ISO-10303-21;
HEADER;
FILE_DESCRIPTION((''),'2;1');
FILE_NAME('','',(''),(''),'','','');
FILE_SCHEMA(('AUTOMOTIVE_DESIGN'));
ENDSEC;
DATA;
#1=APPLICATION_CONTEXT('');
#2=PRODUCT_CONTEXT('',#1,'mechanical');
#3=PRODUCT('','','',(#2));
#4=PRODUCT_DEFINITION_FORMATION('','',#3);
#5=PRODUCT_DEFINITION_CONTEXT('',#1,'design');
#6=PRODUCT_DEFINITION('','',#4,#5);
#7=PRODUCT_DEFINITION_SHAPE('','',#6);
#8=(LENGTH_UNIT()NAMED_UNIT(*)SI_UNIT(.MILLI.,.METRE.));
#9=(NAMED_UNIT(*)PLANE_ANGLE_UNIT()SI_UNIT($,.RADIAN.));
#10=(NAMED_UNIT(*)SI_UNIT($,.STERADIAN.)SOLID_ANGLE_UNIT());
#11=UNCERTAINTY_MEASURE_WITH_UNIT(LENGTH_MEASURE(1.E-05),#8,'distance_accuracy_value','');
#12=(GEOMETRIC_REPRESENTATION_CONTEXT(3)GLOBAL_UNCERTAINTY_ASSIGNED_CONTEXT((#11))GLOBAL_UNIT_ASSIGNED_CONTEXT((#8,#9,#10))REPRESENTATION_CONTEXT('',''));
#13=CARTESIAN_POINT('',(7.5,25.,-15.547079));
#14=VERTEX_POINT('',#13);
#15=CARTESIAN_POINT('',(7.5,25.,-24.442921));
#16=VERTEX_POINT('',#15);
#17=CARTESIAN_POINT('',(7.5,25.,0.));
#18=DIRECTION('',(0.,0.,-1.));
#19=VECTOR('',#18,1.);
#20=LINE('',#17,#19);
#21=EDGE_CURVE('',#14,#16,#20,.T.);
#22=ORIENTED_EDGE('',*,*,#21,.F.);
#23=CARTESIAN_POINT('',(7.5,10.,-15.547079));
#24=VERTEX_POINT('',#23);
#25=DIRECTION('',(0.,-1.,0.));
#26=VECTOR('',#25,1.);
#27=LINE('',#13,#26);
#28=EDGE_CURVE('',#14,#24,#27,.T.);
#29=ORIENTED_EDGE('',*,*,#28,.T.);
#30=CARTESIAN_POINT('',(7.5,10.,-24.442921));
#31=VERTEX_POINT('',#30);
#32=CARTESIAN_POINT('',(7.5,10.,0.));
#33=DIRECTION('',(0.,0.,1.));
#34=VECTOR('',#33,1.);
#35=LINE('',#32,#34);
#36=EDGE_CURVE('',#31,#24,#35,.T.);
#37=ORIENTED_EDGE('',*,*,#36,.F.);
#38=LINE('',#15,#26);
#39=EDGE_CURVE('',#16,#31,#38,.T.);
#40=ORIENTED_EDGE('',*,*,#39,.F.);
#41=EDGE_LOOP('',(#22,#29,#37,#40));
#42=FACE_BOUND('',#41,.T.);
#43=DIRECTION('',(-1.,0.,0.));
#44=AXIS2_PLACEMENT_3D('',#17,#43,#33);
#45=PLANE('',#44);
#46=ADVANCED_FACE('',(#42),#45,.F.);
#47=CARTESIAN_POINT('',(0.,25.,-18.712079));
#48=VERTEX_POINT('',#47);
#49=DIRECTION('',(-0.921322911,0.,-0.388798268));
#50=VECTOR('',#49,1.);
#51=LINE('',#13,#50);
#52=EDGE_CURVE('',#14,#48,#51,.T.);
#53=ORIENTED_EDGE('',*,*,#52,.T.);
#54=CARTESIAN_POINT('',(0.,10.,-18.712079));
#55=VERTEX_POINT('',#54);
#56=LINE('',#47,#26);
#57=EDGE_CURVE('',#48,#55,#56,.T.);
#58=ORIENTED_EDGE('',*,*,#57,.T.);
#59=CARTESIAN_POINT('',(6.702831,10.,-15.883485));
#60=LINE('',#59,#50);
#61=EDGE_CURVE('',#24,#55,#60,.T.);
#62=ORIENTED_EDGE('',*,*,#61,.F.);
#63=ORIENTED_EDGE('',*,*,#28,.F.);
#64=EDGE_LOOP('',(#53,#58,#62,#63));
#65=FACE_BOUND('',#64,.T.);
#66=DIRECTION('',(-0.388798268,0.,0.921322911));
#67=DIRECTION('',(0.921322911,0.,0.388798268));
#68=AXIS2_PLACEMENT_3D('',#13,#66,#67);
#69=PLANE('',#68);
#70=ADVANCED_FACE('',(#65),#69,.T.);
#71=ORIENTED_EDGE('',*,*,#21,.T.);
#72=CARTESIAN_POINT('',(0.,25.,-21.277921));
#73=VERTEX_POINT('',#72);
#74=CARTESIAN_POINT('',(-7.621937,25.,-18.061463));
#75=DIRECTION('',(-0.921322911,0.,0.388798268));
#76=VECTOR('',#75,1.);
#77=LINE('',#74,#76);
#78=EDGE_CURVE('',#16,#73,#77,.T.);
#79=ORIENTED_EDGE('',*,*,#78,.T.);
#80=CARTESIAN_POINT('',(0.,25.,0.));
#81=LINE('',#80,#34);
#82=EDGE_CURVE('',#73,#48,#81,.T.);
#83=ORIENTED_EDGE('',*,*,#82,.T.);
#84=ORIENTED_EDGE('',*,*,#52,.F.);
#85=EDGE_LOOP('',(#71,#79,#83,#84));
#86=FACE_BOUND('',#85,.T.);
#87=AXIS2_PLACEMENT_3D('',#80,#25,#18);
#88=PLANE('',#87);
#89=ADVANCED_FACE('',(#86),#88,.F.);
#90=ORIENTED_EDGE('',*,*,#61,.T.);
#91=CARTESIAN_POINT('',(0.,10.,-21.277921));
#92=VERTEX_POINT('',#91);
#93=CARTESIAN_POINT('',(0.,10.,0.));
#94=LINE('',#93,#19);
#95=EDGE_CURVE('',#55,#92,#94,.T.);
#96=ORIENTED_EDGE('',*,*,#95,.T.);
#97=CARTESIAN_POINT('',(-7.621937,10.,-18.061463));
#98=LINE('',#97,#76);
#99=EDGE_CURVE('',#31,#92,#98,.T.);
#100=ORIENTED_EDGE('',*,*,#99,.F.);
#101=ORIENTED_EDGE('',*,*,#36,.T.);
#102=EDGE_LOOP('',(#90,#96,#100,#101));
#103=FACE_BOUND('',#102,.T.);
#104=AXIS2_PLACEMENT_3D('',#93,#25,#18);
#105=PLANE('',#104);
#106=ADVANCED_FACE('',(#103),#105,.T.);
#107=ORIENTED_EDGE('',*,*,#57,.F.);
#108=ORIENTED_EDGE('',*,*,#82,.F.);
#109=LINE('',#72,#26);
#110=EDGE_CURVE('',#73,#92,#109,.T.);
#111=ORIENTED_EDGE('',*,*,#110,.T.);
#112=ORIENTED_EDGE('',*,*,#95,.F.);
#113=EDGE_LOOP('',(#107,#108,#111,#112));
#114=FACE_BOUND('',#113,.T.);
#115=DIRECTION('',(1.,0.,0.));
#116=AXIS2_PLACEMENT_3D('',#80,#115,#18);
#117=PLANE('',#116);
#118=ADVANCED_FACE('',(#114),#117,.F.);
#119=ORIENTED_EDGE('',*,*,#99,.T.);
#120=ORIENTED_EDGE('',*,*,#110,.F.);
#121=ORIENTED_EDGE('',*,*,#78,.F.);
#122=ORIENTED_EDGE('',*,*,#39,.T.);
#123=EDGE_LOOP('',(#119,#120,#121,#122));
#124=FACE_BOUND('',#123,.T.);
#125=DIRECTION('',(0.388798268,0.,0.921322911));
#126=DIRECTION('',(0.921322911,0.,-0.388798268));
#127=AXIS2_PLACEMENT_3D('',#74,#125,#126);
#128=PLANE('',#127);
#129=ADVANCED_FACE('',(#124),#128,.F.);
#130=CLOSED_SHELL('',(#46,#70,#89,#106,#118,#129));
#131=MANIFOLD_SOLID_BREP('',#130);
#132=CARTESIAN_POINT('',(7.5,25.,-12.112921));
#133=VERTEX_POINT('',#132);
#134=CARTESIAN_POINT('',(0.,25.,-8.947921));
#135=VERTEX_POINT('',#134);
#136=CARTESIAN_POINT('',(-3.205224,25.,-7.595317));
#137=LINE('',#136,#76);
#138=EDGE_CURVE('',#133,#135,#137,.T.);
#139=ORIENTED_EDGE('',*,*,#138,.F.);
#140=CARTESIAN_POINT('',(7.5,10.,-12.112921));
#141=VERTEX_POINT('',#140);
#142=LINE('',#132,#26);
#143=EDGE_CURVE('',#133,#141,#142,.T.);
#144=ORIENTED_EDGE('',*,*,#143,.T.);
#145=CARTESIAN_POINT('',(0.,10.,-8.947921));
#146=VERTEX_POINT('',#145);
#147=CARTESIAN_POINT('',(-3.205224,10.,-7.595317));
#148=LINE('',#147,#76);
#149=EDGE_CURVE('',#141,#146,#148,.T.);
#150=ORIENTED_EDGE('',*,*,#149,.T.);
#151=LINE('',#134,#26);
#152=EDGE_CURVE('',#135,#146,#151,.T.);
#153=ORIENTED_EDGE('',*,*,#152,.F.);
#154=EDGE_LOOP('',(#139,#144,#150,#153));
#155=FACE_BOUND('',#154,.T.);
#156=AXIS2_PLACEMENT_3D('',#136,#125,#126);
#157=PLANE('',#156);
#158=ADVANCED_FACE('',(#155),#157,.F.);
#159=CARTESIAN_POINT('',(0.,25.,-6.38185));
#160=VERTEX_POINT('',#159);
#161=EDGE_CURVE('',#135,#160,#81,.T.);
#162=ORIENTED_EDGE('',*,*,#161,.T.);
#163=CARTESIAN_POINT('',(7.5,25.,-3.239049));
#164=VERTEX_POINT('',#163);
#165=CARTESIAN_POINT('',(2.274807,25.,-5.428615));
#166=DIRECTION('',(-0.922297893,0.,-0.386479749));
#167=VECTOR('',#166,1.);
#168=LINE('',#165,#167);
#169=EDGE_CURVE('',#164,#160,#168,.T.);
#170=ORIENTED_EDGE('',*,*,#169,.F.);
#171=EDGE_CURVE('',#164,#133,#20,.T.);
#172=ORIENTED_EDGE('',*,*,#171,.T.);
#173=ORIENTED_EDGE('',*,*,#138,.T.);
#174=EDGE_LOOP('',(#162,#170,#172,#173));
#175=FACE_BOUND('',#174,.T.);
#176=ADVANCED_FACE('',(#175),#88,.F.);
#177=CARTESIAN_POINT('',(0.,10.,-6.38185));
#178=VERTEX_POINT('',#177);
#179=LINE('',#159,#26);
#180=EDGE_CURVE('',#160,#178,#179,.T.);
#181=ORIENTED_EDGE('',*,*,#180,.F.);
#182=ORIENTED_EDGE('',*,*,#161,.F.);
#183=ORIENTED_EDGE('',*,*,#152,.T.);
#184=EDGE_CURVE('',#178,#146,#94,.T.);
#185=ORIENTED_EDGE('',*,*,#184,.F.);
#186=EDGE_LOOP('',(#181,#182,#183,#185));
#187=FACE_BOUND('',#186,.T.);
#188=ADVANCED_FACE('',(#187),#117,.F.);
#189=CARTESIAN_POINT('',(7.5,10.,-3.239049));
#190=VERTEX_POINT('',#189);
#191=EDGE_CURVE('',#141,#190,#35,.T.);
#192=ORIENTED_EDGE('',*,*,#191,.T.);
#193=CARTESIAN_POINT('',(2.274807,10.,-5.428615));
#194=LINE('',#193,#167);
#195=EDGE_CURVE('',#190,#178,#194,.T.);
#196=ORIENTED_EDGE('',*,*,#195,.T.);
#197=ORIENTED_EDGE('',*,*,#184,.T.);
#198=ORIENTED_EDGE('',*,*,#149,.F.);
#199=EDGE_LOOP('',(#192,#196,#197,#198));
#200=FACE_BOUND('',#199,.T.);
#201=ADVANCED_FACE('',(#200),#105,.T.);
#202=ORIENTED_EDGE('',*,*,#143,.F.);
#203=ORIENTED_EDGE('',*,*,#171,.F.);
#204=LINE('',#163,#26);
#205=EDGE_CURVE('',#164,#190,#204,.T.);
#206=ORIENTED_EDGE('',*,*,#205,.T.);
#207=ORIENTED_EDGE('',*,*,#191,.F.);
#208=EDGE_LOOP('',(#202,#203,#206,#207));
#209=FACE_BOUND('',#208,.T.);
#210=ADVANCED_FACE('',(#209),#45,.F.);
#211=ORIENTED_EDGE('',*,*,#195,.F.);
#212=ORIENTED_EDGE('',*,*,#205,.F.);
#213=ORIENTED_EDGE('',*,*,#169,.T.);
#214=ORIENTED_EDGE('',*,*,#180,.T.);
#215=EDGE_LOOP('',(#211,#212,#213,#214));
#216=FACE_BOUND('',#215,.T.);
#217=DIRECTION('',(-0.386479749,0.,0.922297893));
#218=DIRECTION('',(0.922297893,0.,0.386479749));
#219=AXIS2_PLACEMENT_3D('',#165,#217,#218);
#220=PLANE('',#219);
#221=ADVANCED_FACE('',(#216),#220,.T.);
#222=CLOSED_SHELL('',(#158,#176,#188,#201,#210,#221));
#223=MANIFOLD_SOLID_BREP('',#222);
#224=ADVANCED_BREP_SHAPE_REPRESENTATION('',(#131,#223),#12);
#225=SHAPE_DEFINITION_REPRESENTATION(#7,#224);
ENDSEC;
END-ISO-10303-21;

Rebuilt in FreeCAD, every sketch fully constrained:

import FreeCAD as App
import Part
import Sketcher

V = App.Vector
Q = App.Units.Quantity

doc = App.newDocument("Part")
body = doc.addObject("PartDesign::Body", "Body")
body.AllowCompound = True

sketch1 = doc.addObject("Sketcher::SketchObject", "Sketch")
body.addObject(sketch1)
sketch1.AttachmentSupport = (doc.XZ_Plane, [""])
sketch1.MapMode = "FlatFace"
sketch1.addGeometry(Part.LineSegment(V(0, -28, 0), V(0, 0, 0)), False)
sketch1.addGeometry(Part.LineSegment(V(0, 0, 0), V(8, 0, 0)), False)
sketch1.addGeometry(Part.LineSegment(V(8, 0, 0), V(8, -28, 0)), False)
sketch1.addGeometry(Part.LineSegment(V(8, -28, 0), V(0, -28, 0)), False)
sketch1.addConstraint(Sketcher.Constraint("Coincident", 0, 2, 1, 1))
sketch1.addConstraint(Sketcher.Constraint("Coincident", 1, 2, 2, 1))
sketch1.addConstraint(Sketcher.Constraint("Coincident", 2, 2, 3, 1))
sketch1.addConstraint(Sketcher.Constraint("Coincident", 3, 2, 0, 1))
sketch1.addConstraint(Sketcher.Constraint("Vertical", 0))
sketch1.addConstraint(Sketcher.Constraint("Horizontal", 1))
sketch1.addConstraint(Sketcher.Constraint("Vertical", 2))
sketch1.addConstraint(Sketcher.Constraint("Horizontal", 3))
sketch1.addConstraint(Sketcher.Constraint("Coincident", 0, 2, -1, 1))
sketch1.addConstraint(Sketcher.Constraint("DistanceX", 1, 1, 1, 2, Q("7.5 mm")))
sketch1.addConstraint(Sketcher.Constraint("DistanceY", 0, 1, 0, 2, Q("27.66 mm")))
pad1 = doc.addObject("PartDesign::Pad", "Pad")
body.addObject(pad1)
pad1.Profile = sketch1
pad1.Length = 25
pad1.Reversed = True

sketch2 = doc.addObject("Sketcher::SketchObject", "Sketch001")
body.addObject(sketch2)
sketch2.AttachmentSupport = (doc.XZ_Plane, [""])
sketch2.MapMode = "FlatFace"
sketch2.addGeometry(Part.LineSegment(V(0, 0, 0), V(0, -28, 0)), False)
sketch2.addGeometry(Part.LineSegment(V(0, -28, 0), V(8, -28, 0)), False)
sketch2.addGeometry(Part.LineSegment(V(8, -28, 0), V(8, 0, 0)), False)
sketch2.addGeometry(Part.LineSegment(V(8, 0, 0), V(0, 0, 0)), False)
sketch2.addConstraint(Sketcher.Constraint("Coincident", 0, 2, 1, 1))
sketch2.addConstraint(Sketcher.Constraint("Coincident", 1, 2, 2, 1))
sketch2.addConstraint(Sketcher.Constraint("Coincident", 2, 2, 3, 1))
sketch2.addConstraint(Sketcher.Constraint("Coincident", 3, 2, 0, 1))
sketch2.addConstraint(Sketcher.Constraint("Vertical", 0))
sketch2.addConstraint(Sketcher.Constraint("Horizontal", 1))
sketch2.addConstraint(Sketcher.Constraint("Vertical", 2))
sketch2.addConstraint(Sketcher.Constraint("Horizontal", 3))
sketch2.addConstraint(Sketcher.Constraint("Coincident", 3, 2, -1, 1))
sketch2.addConstraint(Sketcher.Constraint("DistanceX", 1, 1, 1, 2, Q("7.5 mm")))
sketch2.addConstraint(Sketcher.Constraint("DistanceY", 0, 2, 0, 1, Q("27.66 mm")))
pocket1 = doc.addObject("PartDesign::Pocket", "Pocket")
body.addObject(pocket1)
pocket1.Profile = sketch2
pocket1.Length = 10

sketch3 = doc.addObject("Sketcher::SketchObject", "Sketch002")
body.addObject(sketch3)
sketch3.AttachmentSupport = (doc.XZ_Plane, [""])
sketch3.MapMode = "FlatFace"
sketch3.AttachmentOffset = App.Placement(V(0, 0, -10), App.Rotation())
sketch3.addGeometry(Part.LineSegment(V(0, -5.95, 0), V(0, -6.38, 0)), False)
sketch3.addGeometry(Part.LineSegment(V(0, -6.38, 0), V(7.5, -3.24, 0)), False)
sketch3.addGeometry(Part.LineSegment(V(7.5, -3.24, 0), V(7.5, -2.81, 0)), False)
sketch3.addGeometry(Part.LineSegment(V(7.5, -2.81, 0), V(0, -5.95, 0)), False)
sketch3.addGeometry(Part.LineSegment(V(7.5, -12.11, 0), V(0, -8.95, 0)), False)
sketch3.addGeometry(Part.LineSegment(V(0, -8.95, 0), V(0, -9.38, 0)), False)
sketch3.addGeometry(Part.LineSegment(V(0, -9.38, 0), V(7.5, -12.55, 0)), False)
sketch3.addGeometry(Part.LineSegment(V(7.5, -12.55, 0), V(7.5, -12.11, 0)), False)
sketch3.addGeometry(Part.LineSegment(V(0, -17.63, 0), V(0, -18.71, 0)), False)
sketch3.addGeometry(Part.LineSegment(V(0, -18.71, 0), V(7.5, -15.55, 0)), False)
sketch3.addGeometry(Part.LineSegment(V(7.5, -15.55, 0), V(7.5, -14.46, 0)), False)
sketch3.addGeometry(Part.LineSegment(V(7.5, -14.46, 0), V(0, -17.63, 0)), False)
sketch3.addGeometry(Part.LineSegment(V(7.5, -24.44, 0), V(0, -21.28, 0)), False)
sketch3.addGeometry(Part.LineSegment(V(0, -21.28, 0), V(0, -21.71, 0)), False)
sketch3.addGeometry(Part.LineSegment(V(0, -21.71, 0), V(7.5, -24.88, 0)), False)
sketch3.addGeometry(Part.LineSegment(V(7.5, -24.88, 0), V(7.5, -24.44, 0)), False)
sketch3.addConstraint(Sketcher.Constraint("Coincident", 0, 2, 1, 1))
sketch3.addConstraint(Sketcher.Constraint("Coincident", 1, 2, 2, 1))
sketch3.addConstraint(Sketcher.Constraint("Coincident", 2, 2, 3, 1))
sketch3.addConstraint(Sketcher.Constraint("Coincident", 3, 2, 0, 1))
sketch3.addConstraint(Sketcher.Constraint("Coincident", 4, 2, 5, 1))
sketch3.addConstraint(Sketcher.Constraint("Coincident", 5, 2, 6, 1))
sketch3.addConstraint(Sketcher.Constraint("Coincident", 6, 2, 7, 1))
sketch3.addConstraint(Sketcher.Constraint("Coincident", 7, 2, 4, 1))
sketch3.addConstraint(Sketcher.Constraint("Coincident", 8, 2, 9, 1))
sketch3.addConstraint(Sketcher.Constraint("Coincident", 9, 2, 10, 1))
sketch3.addConstraint(Sketcher.Constraint("Coincident", 10, 2, 11, 1))
sketch3.addConstraint(Sketcher.Constraint("Coincident", 11, 2, 8, 1))
sketch3.addConstraint(Sketcher.Constraint("Coincident", 12, 2, 13, 1))
sketch3.addConstraint(Sketcher.Constraint("Coincident", 13, 2, 14, 1))
sketch3.addConstraint(Sketcher.Constraint("Coincident", 14, 2, 15, 1))
sketch3.addConstraint(Sketcher.Constraint("Coincident", 15, 2, 12, 1))
sketch3.addConstraint(Sketcher.Constraint("Vertical", 0))
sketch3.addConstraint(Sketcher.Constraint("Vertical", 2))
sketch3.addConstraint(Sketcher.Constraint("Vertical", 5))
sketch3.addConstraint(Sketcher.Constraint("Vertical", 7))
sketch3.addConstraint(Sketcher.Constraint("Vertical", 8))
sketch3.addConstraint(Sketcher.Constraint("Vertical", 10))
sketch3.addConstraint(Sketcher.Constraint("Vertical", 13))
sketch3.addConstraint(Sketcher.Constraint("Vertical", 15))
sketch3.addConstraint(Sketcher.Constraint("PointOnObject", 0, 2, -2))
sketch3.addConstraint(Sketcher.Constraint("PointOnObject", 4, 2, -2))
sketch3.addConstraint(Sketcher.Constraint("PointOnObject", 8, 2, -2))
sketch3.addConstraint(Sketcher.Constraint("PointOnObject", 12, 2, -2))
sketch3.addConstraint(Sketcher.Constraint("Parallel", 1, 3))
sketch3.addConstraint(Sketcher.Constraint("Parallel", 4, 6))
sketch3.addConstraint(Sketcher.Constraint("Parallel", 9, 11))
sketch3.addConstraint(Sketcher.Constraint("Parallel", 6, 12))
sketch3.addConstraint(Sketcher.Constraint("Parallel", 12, 14))
sketch3.addConstraint(Sketcher.Constraint("Vertical", 2, 2, 6, 2))
sketch3.addConstraint(Sketcher.Constraint("Vertical", 7, 2, 9, 2))
sketch3.addConstraint(Sketcher.Constraint("Vertical", 10, 2, 14, 2))
sketch3.addConstraint(Sketcher.Constraint("Equal", 7, 13))
sketch3.addConstraint(Sketcher.Constraint("Equal", 6, 9))
sketch3.addConstraint(Sketcher.Constraint("DistanceY", 9, 2, 6, 2, Q("3 mm")))
sketch3.addConstraint(Sketcher.Constraint("DistanceY", 13, 2, 8, 2, Q("3 mm")))
sketch3.addConstraint(Sketcher.Constraint("DistanceX", -1, 1, 1, 2, Q("7.5 mm")))
sketch3.addConstraint(Sketcher.Constraint("DistanceY", 8, 2, 5, 2, Q("9.33 mm")))
sketch3.addConstraint(Sketcher.Constraint("DistanceY", 0, 2, 0, 1, Q("0.433699 mm")))
sketch3.addConstraint(Sketcher.Constraint("DistanceY", 5, 2, 5, 1, Q("0.434158 mm")))
sketch3.addConstraint(Sketcher.Constraint("DistanceY", 0, 2, 1, 2, Q("3.1428 mm")))
sketch3.addConstraint(Sketcher.Constraint("DistanceY", 8, 2, 8, 1, Q("1.085396 mm")))
sketch3.addConstraint(Sketcher.Constraint("DistanceY", 0, 2, -1, 1, Q("6.38185 mm")))
sketch3.addConstraint(Sketcher.Constraint("DistanceY", 4, 2, -1, 1, Q("8.947921 mm")))
pocket2 = doc.addObject("PartDesign::Pocket", "Pocket001")
body.addObject(pocket2)
pocket2.Profile = sketch3
pocket2.Type = "ThroughAll"
pocket2.Midplane = True

sketch4 = doc.addObject("Sketcher::SketchObject", "Sketch003")
body.addObject(sketch4)
sketch4.AttachmentSupport = (doc.XZ_Plane, [""])
sketch4.MapMode = "FlatFace"
sketch4.AttachmentOffset = App.Placement(V(0, 0, -10), App.Rotation())
sketch4.addGeometry(Part.LineSegment(V(7.5, 0, 0), V(0, 0, 0)), False)
sketch4.addGeometry(Part.LineSegment(V(0, 0, 0), V(0, -5.9, 0)), False)
sketch4.addGeometry(Part.LineSegment(V(0, -5.9, 0), V(7.5, -2.8, 0)), False)
sketch4.addGeometry(Part.LineSegment(V(7.5, -2.8, 0), V(7.5, 0, 0)), False)
sketch4.addGeometry(Part.LineSegment(V(7.5, -12.5, 0), V(0, -9.4, 0)), False)
sketch4.addGeometry(Part.LineSegment(V(0, -9.4, 0), V(0, -17.6, 0)), False)
sketch4.addGeometry(Part.LineSegment(V(0, -17.6, 0), V(7.5, -14.8, 0)), False)
sketch4.addGeometry(Part.LineSegment(V(7.5, -14.8, 0), V(7.5, -12.5, 0)), False)
sketch4.addGeometry(Part.LineSegment(V(7.5, -24.9, 0), V(0, -21.7, 0)), False)
sketch4.addGeometry(Part.LineSegment(V(0, -21.7, 0), V(0, -27.7, 0)), False)
sketch4.addGeometry(Part.LineSegment(V(0, -27.7, 0), V(7.5, -27.7, 0)), False)
sketch4.addGeometry(Part.LineSegment(V(7.5, -27.7, 0), V(7.5, -24.9, 0)), False)
sketch4.addConstraint(Sketcher.Constraint("Coincident", 0, 2, 1, 1))
sketch4.addConstraint(Sketcher.Constraint("Coincident", 1, 2, 2, 1))
sketch4.addConstraint(Sketcher.Constraint("Coincident", 2, 2, 3, 1))
sketch4.addConstraint(Sketcher.Constraint("Coincident", 3, 2, 0, 1))
sketch4.addConstraint(Sketcher.Constraint("Coincident", 4, 2, 5, 1))
sketch4.addConstraint(Sketcher.Constraint("Coincident", 5, 2, 6, 1))
sketch4.addConstraint(Sketcher.Constraint("Coincident", 6, 2, 7, 1))
sketch4.addConstraint(Sketcher.Constraint("Coincident", 7, 2, 4, 1))
sketch4.addConstraint(Sketcher.Constraint("Coincident", 8, 2, 9, 1))
sketch4.addConstraint(Sketcher.Constraint("Coincident", 9, 2, 10, 1))
sketch4.addConstraint(Sketcher.Constraint("Coincident", 10, 2, 11, 1))
sketch4.addConstraint(Sketcher.Constraint("Coincident", 11, 2, 8, 1))
sketch4.addConstraint(Sketcher.Constraint("Horizontal", 0))
sketch4.addConstraint(Sketcher.Constraint("Vertical", 1))
sketch4.addConstraint(Sketcher.Constraint("Vertical", 3))
sketch4.addConstraint(Sketcher.Constraint("Vertical", 5))
sketch4.addConstraint(Sketcher.Constraint("Vertical", 7))
sketch4.addConstraint(Sketcher.Constraint("Vertical", 9))
sketch4.addConstraint(Sketcher.Constraint("Horizontal", 10))
sketch4.addConstraint(Sketcher.Constraint("Vertical", 11))
sketch4.addConstraint(Sketcher.Constraint("Coincident", 0, 2, -1, 1))
sketch4.addConstraint(Sketcher.Constraint("PointOnObject", 4, 2, -2))
sketch4.addConstraint(Sketcher.Constraint("PointOnObject", 8, 2, -2))
sketch4.addConstraint(Sketcher.Constraint("Parallel", 4, 8))
sketch4.addConstraint(Sketcher.Constraint("Vertical", 3, 2, 6, 2))
sketch4.addConstraint(Sketcher.Constraint("Vertical", 7, 2, 10, 2))
sketch4.addConstraint(Sketcher.Constraint("DistanceX", 0, 2, 0, 1, Q("7.5 mm")))
sketch4.addConstraint(Sketcher.Constraint("DistanceY", 9, 2, -1, 1, Q("27.66 mm")))
sketch4.addConstraint(Sketcher.Constraint("DistanceY", 8, 2, 4, 2, Q("12.33 mm")))
sketch4.addConstraint(Sketcher.Constraint("DistanceY", 7, 2, 4, 2, Q("3.165 mm")))
sketch4.addConstraint(Sketcher.Constraint("DistanceY", 1, 2, 1, 1, Q("5.94815 mm")))
sketch4.addConstraint(Sketcher.Constraint("DistanceY", 3, 1, 3, 2, Q("2.80535 mm")))
sketch4.addConstraint(Sketcher.Constraint("DistanceY", 9, 2, 9, 1, Q("5.947921 mm")))
sketch4.addConstraint(Sketcher.Constraint("Distance", 6, Q("8.019482 mm")))
sketch4.addConstraint(Sketcher.Constraint("DistanceY", 5, 2, 5, 1, Q("8.244604 mm")))
pocket3 = doc.addObject("PartDesign::Pocket", "Pocket002")
body.addObject(pocket3)
pocket3.Profile = sketch4
pocket3.Type = "ThroughAll"
pocket3.Midplane = True

doc.recompute()
